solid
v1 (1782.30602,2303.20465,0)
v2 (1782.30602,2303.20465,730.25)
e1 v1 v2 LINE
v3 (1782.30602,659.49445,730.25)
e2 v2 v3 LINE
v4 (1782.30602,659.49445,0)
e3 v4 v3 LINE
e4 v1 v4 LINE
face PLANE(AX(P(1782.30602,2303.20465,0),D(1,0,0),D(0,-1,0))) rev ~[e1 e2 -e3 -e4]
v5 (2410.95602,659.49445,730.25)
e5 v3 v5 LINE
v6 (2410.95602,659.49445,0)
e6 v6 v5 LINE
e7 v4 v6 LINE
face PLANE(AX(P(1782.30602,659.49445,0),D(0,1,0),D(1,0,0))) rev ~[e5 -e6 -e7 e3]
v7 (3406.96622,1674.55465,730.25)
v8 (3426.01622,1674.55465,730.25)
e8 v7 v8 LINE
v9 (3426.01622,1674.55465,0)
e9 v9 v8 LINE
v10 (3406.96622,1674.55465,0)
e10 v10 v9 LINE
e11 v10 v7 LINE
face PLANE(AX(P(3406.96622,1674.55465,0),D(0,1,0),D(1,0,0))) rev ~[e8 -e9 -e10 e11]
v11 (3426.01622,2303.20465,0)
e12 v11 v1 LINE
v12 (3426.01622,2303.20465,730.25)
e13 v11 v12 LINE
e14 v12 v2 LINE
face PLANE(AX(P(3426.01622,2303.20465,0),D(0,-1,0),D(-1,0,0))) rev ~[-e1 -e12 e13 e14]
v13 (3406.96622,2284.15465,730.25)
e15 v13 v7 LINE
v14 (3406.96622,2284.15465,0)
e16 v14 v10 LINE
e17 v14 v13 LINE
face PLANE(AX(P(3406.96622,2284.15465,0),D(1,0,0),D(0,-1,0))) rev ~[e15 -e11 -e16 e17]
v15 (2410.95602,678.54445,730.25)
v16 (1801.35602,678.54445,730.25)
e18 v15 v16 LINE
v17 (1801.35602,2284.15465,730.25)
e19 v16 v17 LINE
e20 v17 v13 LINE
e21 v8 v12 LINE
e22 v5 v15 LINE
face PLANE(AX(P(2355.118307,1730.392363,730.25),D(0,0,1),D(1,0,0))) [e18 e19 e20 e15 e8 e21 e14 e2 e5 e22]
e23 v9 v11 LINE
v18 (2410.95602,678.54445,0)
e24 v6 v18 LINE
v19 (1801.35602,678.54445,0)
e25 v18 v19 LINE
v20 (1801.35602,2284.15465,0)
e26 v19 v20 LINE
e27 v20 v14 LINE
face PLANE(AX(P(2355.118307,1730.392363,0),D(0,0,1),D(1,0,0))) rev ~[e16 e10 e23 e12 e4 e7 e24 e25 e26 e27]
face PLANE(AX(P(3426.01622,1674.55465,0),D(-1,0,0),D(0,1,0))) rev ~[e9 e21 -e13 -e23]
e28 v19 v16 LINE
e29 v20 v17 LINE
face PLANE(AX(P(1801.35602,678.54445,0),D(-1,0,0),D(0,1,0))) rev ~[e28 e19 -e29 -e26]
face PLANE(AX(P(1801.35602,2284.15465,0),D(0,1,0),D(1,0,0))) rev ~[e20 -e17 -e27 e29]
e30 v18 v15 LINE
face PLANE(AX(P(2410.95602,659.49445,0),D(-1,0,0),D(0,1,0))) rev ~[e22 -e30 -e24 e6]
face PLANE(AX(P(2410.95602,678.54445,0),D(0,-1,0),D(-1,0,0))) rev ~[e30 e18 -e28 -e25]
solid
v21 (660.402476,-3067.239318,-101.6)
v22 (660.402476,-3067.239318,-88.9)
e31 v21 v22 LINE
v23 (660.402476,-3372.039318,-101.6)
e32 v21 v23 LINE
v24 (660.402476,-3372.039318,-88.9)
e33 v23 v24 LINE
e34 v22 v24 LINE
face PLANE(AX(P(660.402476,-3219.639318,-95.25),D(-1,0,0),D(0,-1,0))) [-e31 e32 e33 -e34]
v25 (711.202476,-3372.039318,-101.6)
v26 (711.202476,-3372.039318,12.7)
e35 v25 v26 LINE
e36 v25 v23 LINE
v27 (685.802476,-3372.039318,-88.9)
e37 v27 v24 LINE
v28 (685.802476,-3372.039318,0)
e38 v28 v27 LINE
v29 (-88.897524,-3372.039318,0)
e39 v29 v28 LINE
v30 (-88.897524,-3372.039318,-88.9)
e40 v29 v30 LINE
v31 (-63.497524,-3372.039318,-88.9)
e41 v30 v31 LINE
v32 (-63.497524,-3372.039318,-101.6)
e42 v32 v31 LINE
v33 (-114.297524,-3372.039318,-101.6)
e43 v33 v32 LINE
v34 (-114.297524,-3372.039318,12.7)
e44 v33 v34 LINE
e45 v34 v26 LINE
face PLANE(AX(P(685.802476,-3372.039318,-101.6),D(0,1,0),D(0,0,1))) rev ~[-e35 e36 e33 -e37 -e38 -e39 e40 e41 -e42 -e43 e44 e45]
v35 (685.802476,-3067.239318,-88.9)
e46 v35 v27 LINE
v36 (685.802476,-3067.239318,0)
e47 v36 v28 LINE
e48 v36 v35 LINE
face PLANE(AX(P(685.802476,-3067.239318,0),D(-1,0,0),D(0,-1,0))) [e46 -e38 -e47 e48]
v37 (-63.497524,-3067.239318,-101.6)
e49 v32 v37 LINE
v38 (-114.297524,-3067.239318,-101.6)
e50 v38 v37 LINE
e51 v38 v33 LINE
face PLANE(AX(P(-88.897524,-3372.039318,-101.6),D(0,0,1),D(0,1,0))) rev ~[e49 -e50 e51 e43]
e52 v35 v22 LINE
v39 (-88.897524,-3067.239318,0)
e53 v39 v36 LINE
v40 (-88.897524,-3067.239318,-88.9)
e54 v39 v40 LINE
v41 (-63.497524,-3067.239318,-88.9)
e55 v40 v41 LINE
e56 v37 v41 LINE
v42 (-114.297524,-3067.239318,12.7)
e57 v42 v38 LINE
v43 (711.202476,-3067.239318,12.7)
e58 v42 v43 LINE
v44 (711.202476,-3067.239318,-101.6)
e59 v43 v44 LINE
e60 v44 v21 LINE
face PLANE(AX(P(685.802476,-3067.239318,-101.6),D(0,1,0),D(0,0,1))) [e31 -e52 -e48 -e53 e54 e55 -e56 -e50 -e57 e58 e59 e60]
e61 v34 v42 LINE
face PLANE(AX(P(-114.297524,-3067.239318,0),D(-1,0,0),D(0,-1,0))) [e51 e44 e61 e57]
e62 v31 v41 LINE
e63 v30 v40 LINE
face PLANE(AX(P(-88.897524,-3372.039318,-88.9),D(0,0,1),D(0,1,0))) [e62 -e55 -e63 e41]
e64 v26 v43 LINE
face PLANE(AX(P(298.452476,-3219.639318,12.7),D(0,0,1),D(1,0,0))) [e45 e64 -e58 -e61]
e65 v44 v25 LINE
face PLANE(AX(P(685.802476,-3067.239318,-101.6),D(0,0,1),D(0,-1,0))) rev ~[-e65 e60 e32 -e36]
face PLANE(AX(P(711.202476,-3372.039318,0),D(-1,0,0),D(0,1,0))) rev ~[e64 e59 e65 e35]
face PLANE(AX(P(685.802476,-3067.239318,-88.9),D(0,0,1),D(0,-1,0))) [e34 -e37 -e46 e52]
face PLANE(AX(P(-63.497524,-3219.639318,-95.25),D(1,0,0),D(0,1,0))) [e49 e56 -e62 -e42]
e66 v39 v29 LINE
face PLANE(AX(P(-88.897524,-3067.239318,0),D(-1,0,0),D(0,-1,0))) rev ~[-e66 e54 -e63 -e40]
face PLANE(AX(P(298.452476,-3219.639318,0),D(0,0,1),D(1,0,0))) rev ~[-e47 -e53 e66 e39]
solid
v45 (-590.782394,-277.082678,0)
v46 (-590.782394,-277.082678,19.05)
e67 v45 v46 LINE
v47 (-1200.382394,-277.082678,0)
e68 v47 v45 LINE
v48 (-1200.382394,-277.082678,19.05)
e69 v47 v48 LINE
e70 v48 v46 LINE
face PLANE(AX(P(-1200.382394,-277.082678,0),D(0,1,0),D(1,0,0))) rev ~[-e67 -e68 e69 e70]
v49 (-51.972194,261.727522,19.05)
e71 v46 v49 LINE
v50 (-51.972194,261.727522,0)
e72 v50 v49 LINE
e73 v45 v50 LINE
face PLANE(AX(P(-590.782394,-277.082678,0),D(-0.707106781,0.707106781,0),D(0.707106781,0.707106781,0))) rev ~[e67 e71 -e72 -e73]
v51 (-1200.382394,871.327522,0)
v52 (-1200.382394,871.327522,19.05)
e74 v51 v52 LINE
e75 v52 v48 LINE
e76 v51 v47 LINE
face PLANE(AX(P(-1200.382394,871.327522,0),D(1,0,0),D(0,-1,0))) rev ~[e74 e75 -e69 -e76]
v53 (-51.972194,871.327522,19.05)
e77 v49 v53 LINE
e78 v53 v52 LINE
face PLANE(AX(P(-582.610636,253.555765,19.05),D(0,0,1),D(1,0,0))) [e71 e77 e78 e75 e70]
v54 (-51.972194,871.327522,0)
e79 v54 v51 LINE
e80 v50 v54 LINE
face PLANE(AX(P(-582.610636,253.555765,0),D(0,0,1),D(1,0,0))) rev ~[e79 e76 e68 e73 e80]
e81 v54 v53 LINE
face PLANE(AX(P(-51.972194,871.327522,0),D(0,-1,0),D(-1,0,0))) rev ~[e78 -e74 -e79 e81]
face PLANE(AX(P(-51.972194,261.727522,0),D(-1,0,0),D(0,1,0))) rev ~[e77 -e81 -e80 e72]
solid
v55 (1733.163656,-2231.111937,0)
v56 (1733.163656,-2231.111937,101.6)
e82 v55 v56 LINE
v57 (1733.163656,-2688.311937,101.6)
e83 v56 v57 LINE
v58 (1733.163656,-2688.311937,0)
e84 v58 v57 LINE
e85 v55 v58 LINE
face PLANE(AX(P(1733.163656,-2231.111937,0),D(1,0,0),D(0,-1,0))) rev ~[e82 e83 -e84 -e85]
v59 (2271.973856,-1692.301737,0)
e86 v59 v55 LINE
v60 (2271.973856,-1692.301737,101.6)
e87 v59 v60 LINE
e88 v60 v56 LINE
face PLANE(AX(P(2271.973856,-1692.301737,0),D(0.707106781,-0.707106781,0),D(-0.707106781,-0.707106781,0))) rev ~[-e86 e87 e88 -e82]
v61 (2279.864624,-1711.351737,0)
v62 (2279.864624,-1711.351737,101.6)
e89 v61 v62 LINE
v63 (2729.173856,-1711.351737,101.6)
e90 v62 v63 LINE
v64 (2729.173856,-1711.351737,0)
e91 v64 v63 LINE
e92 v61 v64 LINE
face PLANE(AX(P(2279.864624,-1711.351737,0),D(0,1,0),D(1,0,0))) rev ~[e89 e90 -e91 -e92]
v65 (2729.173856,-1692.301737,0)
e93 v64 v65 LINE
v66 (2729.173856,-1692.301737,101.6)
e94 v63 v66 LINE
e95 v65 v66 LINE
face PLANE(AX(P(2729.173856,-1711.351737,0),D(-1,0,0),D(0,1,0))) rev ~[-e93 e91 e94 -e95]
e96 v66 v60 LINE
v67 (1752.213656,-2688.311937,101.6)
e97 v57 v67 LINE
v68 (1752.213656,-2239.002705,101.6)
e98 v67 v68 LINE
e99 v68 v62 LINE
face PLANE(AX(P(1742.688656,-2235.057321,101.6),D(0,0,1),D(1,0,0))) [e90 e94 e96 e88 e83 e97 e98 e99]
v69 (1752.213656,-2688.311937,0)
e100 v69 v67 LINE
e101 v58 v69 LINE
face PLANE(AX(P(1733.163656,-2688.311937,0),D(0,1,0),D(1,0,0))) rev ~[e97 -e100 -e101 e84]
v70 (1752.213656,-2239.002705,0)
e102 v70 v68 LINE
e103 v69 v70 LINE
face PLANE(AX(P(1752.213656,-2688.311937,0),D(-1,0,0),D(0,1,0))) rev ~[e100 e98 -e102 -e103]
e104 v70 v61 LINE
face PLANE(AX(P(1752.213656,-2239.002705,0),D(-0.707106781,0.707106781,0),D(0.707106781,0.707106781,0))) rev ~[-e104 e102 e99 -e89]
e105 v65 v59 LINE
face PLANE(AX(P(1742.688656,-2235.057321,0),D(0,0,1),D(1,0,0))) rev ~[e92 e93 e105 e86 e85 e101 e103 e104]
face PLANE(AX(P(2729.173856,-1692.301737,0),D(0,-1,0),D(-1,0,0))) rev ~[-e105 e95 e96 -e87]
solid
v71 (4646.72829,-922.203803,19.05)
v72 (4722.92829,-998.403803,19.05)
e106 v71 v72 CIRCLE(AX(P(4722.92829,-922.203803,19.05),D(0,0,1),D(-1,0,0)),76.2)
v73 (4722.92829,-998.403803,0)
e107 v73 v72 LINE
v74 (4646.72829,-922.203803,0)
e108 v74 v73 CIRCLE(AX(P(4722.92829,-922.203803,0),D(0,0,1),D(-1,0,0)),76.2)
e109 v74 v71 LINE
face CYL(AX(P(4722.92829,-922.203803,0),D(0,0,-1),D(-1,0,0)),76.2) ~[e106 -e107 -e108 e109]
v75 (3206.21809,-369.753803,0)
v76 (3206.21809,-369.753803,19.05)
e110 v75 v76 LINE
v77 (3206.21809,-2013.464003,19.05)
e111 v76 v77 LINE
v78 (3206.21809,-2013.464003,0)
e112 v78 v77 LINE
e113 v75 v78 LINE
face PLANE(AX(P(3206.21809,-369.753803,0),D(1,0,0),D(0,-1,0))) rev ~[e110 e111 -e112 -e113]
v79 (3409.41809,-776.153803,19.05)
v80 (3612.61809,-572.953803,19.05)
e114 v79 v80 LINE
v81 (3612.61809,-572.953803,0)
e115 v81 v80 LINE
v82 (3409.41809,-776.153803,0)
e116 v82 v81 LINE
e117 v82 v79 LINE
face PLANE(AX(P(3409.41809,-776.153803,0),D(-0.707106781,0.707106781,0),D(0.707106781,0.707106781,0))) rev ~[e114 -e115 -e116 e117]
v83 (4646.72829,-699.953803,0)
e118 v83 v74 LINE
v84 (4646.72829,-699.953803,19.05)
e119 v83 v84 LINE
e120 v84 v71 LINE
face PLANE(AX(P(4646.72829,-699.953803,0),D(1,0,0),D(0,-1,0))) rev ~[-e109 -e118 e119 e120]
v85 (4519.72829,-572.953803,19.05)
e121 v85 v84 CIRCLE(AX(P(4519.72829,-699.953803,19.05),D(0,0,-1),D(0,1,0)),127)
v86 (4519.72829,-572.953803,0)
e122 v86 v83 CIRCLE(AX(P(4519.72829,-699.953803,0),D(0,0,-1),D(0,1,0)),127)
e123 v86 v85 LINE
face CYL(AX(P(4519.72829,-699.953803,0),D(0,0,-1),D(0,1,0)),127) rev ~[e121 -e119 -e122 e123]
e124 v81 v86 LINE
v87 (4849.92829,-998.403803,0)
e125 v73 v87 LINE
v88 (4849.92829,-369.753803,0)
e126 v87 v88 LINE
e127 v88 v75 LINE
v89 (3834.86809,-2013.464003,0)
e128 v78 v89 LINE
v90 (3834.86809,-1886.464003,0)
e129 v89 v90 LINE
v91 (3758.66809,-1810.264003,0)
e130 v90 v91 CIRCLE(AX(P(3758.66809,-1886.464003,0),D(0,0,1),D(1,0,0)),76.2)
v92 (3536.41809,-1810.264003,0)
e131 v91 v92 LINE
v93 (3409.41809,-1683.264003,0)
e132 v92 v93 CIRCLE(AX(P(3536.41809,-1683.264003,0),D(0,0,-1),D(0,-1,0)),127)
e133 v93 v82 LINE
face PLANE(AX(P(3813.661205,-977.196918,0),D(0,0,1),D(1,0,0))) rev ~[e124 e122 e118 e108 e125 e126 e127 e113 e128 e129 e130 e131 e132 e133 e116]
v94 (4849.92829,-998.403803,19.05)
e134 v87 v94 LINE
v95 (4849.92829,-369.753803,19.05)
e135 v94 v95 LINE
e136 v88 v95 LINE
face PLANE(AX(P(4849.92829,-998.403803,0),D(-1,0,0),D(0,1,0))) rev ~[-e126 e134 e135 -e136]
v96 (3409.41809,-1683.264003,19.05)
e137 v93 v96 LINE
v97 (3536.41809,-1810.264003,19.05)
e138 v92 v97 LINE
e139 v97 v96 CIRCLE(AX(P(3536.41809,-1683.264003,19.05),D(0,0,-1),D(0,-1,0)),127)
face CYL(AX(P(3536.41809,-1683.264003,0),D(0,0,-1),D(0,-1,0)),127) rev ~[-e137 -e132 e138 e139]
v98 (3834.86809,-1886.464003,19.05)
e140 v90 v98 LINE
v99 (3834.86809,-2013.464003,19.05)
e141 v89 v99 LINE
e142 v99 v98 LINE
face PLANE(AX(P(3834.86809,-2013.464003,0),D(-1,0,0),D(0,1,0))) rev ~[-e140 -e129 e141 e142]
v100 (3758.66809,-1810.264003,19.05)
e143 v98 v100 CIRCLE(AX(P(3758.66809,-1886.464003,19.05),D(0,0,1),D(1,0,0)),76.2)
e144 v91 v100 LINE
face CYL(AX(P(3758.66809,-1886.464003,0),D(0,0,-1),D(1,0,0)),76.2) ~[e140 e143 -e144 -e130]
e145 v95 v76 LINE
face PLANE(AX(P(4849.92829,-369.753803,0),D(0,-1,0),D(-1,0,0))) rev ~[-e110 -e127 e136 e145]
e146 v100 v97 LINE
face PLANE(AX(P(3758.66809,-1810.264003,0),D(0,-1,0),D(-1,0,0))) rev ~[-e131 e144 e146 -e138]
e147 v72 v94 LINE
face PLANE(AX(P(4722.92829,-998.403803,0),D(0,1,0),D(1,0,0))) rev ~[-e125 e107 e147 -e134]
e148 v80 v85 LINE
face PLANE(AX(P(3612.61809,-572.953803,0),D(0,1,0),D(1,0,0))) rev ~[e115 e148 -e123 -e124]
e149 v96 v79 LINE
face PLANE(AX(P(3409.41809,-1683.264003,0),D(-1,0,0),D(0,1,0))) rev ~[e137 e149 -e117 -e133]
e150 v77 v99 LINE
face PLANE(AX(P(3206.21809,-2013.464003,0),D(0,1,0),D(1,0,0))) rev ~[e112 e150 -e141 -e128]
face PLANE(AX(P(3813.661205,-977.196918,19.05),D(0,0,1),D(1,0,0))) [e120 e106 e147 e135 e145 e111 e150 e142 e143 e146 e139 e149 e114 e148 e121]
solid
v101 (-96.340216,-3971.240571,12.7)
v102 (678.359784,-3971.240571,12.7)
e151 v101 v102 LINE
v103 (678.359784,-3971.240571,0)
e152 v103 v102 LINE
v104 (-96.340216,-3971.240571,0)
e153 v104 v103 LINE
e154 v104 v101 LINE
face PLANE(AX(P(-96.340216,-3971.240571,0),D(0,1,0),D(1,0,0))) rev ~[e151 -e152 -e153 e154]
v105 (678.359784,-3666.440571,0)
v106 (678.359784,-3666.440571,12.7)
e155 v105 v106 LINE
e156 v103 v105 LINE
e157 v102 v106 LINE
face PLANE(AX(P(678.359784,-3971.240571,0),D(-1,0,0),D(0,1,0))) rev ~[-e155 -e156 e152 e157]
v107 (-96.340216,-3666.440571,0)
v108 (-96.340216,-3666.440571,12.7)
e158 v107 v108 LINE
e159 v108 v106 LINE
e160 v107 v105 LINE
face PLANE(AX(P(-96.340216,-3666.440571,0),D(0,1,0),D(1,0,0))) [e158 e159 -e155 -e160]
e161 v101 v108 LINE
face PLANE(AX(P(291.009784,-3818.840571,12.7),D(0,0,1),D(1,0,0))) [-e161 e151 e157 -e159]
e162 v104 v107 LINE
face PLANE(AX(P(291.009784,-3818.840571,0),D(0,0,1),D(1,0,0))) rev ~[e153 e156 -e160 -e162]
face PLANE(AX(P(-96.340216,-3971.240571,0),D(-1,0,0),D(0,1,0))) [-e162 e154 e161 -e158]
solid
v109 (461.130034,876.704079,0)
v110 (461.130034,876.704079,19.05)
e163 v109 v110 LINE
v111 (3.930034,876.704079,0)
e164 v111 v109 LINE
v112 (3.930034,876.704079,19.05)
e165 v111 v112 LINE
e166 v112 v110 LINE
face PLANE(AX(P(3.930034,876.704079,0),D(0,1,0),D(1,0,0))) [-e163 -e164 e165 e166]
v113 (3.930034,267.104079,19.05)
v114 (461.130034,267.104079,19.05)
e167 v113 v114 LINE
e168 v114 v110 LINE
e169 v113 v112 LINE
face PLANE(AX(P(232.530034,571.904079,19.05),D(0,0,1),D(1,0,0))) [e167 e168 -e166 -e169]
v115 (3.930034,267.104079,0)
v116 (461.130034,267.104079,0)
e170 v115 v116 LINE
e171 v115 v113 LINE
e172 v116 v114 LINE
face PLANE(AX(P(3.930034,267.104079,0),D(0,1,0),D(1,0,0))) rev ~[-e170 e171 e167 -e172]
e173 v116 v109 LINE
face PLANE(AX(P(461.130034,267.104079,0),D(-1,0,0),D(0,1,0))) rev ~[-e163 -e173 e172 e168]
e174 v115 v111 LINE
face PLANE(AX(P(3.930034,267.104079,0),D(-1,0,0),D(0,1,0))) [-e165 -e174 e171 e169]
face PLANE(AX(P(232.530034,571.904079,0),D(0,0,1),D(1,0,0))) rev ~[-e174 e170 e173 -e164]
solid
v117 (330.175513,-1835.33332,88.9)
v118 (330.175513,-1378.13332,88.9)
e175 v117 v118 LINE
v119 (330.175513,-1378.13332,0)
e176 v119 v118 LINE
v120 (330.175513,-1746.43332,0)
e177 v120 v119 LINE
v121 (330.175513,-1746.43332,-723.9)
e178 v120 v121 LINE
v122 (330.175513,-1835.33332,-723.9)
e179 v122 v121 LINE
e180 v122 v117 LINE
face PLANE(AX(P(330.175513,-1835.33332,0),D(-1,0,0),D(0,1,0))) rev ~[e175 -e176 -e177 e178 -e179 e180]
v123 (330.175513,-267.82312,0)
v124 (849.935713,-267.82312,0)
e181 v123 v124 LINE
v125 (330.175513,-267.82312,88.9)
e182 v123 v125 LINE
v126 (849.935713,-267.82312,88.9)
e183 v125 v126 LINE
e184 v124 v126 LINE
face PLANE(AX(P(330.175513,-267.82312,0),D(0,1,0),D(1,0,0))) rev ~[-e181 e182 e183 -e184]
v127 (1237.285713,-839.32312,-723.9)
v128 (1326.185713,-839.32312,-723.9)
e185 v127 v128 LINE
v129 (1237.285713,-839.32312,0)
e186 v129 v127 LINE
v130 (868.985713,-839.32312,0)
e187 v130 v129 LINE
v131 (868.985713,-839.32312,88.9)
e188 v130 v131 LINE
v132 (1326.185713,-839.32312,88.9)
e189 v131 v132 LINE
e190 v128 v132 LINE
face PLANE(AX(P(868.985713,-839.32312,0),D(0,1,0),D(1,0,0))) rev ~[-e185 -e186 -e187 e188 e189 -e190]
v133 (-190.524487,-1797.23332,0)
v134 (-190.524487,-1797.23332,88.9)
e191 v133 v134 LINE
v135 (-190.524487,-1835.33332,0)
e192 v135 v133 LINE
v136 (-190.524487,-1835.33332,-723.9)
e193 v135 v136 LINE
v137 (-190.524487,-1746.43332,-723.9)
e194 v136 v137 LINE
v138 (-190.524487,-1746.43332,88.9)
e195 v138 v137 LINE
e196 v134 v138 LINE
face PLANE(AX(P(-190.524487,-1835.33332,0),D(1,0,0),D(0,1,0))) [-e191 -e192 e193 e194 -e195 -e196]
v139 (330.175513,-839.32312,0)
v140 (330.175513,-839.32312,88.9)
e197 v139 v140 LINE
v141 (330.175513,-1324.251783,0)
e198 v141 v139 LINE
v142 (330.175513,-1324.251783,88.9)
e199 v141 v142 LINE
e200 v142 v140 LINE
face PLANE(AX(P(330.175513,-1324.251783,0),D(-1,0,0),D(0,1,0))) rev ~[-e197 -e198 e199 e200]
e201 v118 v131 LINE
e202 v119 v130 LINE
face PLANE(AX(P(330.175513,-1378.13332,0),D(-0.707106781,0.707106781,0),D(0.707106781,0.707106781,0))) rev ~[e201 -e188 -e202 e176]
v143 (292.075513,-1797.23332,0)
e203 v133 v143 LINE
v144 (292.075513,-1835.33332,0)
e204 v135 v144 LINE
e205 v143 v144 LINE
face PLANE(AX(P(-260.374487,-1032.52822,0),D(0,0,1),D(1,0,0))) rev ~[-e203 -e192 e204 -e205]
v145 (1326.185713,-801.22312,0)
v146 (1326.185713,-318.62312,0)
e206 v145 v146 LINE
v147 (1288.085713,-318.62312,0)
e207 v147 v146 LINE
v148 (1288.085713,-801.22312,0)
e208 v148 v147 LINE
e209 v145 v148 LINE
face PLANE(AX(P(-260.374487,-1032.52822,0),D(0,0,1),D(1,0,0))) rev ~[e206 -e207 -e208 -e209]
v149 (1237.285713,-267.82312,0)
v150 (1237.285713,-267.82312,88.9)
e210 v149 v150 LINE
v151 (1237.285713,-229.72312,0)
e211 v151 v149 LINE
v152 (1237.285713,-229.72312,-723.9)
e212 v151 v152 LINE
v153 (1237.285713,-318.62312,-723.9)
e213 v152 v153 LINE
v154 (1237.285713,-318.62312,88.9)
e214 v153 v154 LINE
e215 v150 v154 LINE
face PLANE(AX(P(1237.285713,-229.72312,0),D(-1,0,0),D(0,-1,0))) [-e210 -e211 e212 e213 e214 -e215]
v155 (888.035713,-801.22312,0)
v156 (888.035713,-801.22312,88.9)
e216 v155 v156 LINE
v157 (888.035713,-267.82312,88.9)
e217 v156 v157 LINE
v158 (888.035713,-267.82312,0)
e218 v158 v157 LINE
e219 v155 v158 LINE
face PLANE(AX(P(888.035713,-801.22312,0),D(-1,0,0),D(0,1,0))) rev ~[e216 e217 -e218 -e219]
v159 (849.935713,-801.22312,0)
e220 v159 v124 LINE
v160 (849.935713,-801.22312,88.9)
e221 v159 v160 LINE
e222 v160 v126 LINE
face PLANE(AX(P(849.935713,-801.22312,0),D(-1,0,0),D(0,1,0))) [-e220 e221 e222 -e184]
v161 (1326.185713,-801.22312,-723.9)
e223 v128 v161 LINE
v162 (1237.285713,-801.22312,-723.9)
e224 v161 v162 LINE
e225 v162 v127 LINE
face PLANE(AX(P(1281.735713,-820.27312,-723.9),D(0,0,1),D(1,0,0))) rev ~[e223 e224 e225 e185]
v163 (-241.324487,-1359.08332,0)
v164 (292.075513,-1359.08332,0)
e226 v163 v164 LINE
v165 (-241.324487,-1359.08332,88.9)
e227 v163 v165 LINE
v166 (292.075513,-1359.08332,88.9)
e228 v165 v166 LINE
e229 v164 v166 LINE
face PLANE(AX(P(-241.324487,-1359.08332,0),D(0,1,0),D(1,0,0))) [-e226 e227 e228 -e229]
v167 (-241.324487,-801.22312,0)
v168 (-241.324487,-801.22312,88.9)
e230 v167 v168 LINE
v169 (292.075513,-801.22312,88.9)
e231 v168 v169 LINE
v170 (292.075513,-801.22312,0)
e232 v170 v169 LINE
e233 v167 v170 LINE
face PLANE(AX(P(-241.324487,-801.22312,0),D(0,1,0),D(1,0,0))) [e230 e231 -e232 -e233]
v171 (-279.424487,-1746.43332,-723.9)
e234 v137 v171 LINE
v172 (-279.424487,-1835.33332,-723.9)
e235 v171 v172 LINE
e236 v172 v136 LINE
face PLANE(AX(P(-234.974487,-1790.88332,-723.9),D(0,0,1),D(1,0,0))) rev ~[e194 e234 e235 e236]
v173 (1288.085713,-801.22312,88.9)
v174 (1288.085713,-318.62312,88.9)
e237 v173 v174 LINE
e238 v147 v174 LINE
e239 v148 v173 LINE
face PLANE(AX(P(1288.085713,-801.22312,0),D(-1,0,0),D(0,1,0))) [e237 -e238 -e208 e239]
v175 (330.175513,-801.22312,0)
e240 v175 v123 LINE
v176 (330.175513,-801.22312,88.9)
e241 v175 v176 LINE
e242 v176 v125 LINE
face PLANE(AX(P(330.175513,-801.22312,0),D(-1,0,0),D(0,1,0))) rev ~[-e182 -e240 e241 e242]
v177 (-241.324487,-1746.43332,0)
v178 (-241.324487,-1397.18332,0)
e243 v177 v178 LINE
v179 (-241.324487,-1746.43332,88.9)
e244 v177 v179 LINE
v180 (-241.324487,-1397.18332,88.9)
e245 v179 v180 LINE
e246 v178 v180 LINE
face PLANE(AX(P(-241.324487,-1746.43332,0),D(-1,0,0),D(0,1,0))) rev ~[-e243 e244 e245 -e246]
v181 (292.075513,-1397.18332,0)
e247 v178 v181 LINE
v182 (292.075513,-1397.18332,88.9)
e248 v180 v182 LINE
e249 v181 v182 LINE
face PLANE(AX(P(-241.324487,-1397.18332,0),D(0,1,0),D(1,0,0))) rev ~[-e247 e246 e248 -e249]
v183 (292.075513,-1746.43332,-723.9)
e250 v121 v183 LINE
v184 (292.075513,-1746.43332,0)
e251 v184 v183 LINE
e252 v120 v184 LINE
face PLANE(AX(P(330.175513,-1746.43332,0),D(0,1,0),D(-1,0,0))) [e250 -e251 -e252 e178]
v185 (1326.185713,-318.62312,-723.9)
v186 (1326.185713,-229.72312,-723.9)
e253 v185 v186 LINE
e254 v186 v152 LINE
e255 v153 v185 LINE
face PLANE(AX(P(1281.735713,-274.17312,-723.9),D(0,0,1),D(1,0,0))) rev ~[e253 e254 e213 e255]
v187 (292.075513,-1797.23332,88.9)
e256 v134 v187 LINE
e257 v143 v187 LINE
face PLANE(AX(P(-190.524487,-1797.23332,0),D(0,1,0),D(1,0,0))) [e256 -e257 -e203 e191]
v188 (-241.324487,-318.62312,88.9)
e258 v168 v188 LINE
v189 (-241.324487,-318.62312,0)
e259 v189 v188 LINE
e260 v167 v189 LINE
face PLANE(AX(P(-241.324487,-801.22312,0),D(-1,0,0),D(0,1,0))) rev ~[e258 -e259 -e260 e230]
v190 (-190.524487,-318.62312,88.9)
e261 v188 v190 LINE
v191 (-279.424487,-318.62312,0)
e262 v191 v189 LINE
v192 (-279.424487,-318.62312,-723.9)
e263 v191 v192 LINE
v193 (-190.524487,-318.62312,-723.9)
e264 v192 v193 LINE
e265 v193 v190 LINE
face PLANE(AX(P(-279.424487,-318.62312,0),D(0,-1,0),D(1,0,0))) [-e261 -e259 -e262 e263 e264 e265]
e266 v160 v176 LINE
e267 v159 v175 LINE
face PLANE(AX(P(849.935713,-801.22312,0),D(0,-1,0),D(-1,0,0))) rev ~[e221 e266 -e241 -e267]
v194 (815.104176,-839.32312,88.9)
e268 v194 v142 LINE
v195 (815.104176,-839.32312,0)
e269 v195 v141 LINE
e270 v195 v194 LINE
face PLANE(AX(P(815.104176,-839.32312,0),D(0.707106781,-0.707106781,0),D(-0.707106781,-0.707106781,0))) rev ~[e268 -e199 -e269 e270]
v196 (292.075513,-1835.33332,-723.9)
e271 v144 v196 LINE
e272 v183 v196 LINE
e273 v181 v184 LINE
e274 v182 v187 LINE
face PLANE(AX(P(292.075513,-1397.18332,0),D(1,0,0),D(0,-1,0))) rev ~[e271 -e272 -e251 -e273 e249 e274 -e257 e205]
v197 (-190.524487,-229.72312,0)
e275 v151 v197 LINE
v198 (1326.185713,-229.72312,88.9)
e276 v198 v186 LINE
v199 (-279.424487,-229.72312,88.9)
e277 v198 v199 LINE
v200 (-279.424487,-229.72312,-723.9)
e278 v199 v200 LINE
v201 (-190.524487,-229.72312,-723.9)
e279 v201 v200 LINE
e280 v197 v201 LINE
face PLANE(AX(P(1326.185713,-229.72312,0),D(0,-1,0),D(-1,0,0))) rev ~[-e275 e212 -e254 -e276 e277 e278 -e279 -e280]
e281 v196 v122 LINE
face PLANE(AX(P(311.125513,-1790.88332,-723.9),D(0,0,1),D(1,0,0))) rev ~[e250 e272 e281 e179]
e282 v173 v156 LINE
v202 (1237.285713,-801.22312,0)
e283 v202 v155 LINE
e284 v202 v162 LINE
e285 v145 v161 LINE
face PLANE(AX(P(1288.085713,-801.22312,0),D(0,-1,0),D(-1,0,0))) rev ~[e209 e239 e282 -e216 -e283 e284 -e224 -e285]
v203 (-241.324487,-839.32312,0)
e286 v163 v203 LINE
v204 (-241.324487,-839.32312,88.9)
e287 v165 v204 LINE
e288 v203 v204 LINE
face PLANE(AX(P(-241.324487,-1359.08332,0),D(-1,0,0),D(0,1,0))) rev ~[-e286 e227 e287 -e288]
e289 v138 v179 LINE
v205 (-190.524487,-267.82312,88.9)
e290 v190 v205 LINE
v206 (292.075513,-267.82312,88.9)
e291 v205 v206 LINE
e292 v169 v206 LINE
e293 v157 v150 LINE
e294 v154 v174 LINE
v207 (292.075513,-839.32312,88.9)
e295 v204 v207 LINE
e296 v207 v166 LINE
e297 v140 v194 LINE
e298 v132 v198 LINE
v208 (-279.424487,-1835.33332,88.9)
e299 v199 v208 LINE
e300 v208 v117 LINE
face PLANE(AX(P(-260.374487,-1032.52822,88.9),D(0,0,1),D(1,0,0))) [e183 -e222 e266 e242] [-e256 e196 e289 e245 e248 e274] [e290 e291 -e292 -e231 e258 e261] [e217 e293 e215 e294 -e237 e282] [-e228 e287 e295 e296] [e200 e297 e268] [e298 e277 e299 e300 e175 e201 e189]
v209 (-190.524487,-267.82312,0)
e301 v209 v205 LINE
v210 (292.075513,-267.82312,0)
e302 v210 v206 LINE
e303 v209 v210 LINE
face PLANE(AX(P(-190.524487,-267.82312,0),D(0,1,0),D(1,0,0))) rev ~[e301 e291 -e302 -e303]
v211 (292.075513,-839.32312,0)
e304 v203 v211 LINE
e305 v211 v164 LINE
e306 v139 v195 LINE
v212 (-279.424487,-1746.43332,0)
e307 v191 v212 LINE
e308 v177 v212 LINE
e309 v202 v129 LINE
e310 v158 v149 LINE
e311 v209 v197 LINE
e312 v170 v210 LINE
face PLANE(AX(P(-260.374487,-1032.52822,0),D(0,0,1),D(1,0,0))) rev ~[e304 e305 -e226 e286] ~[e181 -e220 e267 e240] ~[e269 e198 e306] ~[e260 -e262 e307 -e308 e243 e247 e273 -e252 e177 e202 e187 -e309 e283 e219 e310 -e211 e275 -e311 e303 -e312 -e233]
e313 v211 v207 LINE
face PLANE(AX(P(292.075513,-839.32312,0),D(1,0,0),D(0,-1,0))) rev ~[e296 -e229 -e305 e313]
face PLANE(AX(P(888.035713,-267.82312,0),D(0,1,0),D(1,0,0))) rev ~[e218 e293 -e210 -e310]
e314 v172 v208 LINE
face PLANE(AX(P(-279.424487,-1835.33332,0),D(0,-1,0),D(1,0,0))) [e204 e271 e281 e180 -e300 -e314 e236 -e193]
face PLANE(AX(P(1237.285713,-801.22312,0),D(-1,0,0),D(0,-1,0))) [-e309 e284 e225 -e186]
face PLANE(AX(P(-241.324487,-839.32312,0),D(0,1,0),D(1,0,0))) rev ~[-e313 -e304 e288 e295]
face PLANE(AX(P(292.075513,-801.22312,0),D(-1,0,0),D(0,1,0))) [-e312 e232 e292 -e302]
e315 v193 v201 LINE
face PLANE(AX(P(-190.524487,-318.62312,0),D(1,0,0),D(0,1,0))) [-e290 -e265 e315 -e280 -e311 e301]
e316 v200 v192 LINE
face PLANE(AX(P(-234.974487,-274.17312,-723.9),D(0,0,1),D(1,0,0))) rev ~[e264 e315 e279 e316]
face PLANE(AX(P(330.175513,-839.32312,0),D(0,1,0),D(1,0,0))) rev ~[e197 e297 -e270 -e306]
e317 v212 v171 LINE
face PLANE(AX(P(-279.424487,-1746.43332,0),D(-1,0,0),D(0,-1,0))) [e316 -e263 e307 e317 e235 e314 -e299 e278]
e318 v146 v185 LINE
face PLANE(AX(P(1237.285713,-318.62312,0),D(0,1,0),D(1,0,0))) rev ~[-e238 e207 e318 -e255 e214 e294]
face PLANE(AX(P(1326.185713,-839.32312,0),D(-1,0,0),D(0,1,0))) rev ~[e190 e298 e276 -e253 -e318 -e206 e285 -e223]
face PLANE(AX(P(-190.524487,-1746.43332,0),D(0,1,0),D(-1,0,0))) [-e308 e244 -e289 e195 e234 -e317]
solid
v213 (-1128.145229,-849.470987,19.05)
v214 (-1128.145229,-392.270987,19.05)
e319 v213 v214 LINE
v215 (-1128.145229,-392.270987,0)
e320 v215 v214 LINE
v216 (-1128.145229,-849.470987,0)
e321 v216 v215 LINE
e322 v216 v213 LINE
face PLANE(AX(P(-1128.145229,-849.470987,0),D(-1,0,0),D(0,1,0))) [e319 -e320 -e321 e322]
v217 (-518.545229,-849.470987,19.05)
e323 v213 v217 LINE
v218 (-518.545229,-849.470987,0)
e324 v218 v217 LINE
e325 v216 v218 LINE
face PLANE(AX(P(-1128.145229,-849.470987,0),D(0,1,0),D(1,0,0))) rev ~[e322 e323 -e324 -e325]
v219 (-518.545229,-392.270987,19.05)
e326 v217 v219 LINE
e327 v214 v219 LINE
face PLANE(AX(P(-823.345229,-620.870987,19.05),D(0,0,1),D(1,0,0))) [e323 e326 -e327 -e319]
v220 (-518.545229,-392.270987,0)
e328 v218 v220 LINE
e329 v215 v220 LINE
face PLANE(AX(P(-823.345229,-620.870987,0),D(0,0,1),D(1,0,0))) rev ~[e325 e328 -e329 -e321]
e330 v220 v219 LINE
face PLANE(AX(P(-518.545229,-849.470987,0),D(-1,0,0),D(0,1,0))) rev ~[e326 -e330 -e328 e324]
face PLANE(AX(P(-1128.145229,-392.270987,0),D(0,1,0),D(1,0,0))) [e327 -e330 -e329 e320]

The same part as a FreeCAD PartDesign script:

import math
import FreeCAD as App
import Part
import Sketcher

V = App.Vector
Q = App.Units.Quantity


def add_polygon(sketch, points):
    """Adds a closed chain of lines whose ends are joined by coincident constraints."""
    first, n = sketch.GeometryCount, len(points)
    for a, b in zip(points, points[1:] + points[:1]):
        sketch.addGeometry(Part.LineSegment(App.Vector(*a, 0), App.Vector(*b, 0)), False)
    for i in range(n):
        sketch.addConstraint(Sketcher.Constraint("Coincident", first + i, 2, first + (i + 1) % n, 1))

doc = App.newDocument("Part")
body = doc.addObject("PartDesign::Body", "Body")

# Sketch on XY plane
sketch1 = body.newObject("Sketcher::SketchObject", "Sketch")
sketch1.AttachmentSupport = (doc.getObject("XY_Plane"), [""])
sketch1.MapMode = "FlatFace"
add_polygon(sketch1, [(-51.972194, 871.327522), (-1200.382394, 871.327522), (-1200.382394, -277.082678), (-590.782394, -277.082678), (-51.972194, 261.727522)])  # lines 0-4
sketch1.addConstraint([
    Sketcher.Constraint("Horizontal", 0),
    Sketcher.Constraint("Vertical", 1),
    Sketcher.Constraint("Horizontal", 2),
    Sketcher.Constraint("Vertical", 4),
    Sketcher.Constraint("Equal", 0, 1),
    Sketcher.Constraint("Equal", 2, 4),
    Sketcher.Constraint("DistanceX", 2, 1, 2, 2, Q("24 in")),
    Sketcher.Constraint("DistanceX", 0, 2, 0, 1, Q("45.213 in")),
    Sketcher.Constraint("DistanceX", 0, 2, -1, 1, Q("1200.382394 mm")),
    Sketcher.Constraint("DistanceY", -1, 1, 0, 2, Q("871.327522 mm")),
])
pad1 = body.newObject("PartDesign::Pad", "Pad")
pad1.Profile = sketch1
pad1.Length = Q("0.75 in")
body2 = doc.addObject("PartDesign::Body", "Body001")

# Sketch on XY plane
sketch2 = body2.newObject("Sketcher::SketchObject", "Sketch001")
sketch2.AttachmentSupport = (doc.getObject("XY_Plane001"), [""])
sketch2.MapMode = "FlatFace"
add_polygon(sketch2, [(-1128.145229, -392.270987), (-1128.145229, -849.470987), (-518.545229, -849.470987), (-518.545229, -392.270987)])  # lines 0-3
sketch2.addConstraint([
    Sketcher.Constraint("Vertical", 0),
    Sketcher.Constraint("Horizontal", 1),
    Sketcher.Constraint("Vertical", 2),
    Sketcher.Constraint("Horizontal", 3),
    Sketcher.Constraint("DistanceX", 1, 1, 1, 2, Q("24 in")),
    Sketcher.Constraint("DistanceY", 0, 2, 0, 1, Q("18 in")),
    Sketcher.Constraint("DistanceX", 0, 2, -1, 1, Q("1128.145229 mm")),
    Sketcher.Constraint("DistanceY", 0, 2, -1, 1, Q("849.470987 mm")),
])
pad2 = body2.newObject("PartDesign::Pad", "Pad001")
pad2.Profile = sketch2
pad2.Length = Q("0.75 in")
body3 = doc.addObject("PartDesign::Body", "Body002")

# Sketch on XY plane
sketch3 = body3.newObject("Sketcher::SketchObject", "Sketch002")
sketch3.AttachmentSupport = (doc.getObject("XY_Plane002"), [""])
sketch3.MapMode = "FlatFace"
add_polygon(sketch3, [(3.930034, 876.704079), (3.930034, 267.104079), (461.130034, 267.104079), (461.130034, 876.704079)])  # lines 0-3
sketch3.addConstraint([
    Sketcher.Constraint("Vertical", 0),
    Sketcher.Constraint("Horizontal", 1),
    Sketcher.Constraint("Vertical", 2),
    Sketcher.Constraint("Horizontal", 3),
    Sketcher.Constraint("DistanceX", 1, 1, 1, 2, Q("18 in")),
    Sketcher.Constraint("DistanceY", 0, 2, 0, 1, Q("24 in")),
    Sketcher.Constraint("DistanceY", -1, 1, 0, 2, Q("267.104079 mm")),
    Sketcher.Constraint("DistanceX", -1, 1, 0, 2, Q("3.930034 mm")),
])
pad3 = body3.newObject("PartDesign::Pad", "Pad002")
pad3.Profile = sketch3
pad3.Length = Q("0.75 in")
body4 = doc.addObject("PartDesign::Body", "Body003")

# Sketch on XY plane
sketch4 = body4.newObject("Sketcher::SketchObject", "Sketch003")
sketch4.AttachmentSupport = (doc.getObject("XY_Plane003"), [""])
sketch4.MapMode = "FlatFace"
add_polygon(sketch4, [(1326.185713, -229.72312), (-279.424487, -229.72312), (-279.424487, -1835.33332), (330.175513, -1835.33332), (330.175513, -1378.13332), (868.985713, -839.32312), (1326.185713, -839.32312)])  # lines 0-6
add_polygon(sketch4, [(1237.285713, -318.62312), (1288.085713, -318.62312), (1288.085713, -801.22312), (888.035713, -801.22312), (888.035713, -267.82312), (1237.285713, -267.82312)])  # lines 7-12
add_polygon(sketch4, [(-190.524487, -1746.43332), (-241.324487, -1746.43332), (-241.324487, -1397.18332), (292.075513, -1397.18332), (292.075513, -1797.23332), (-190.524487, -1797.23332)])  # lines 13-18
add_polygon(sketch4, [(292.075513, -1359.08332), (-241.324487, -1359.08332), (-241.324487, -839.32312), (292.075513, -839.32312)])  # lines 19-22
add_polygon(sketch4, [(330.175513, -839.32312), (815.104176, -839.32312), (330.175513, -1324.251783)])  # lines 23-25
add_polygon(sketch4, [(292.075513, -801.22312), (-241.324487, -801.22312), (-241.324487, -318.62312), (-190.524487, -318.62312), (-190.524487, -267.82312), (292.075513, -267.82312)])  # lines 26-31
add_polygon(sketch4, [(330.175513, -801.22312), (330.175513, -267.82312), (849.935713, -267.82312), (849.935713, -801.22312)])  # lines 32-35
sketch4.addConstraint([
    Sketcher.Constraint("Horizontal", 0),
    Sketcher.Constraint("Vertical", 1),
    Sketcher.Constraint("Horizontal", 2),
    Sketcher.Constraint("Vertical", 3),
    Sketcher.Constraint("Horizontal", 5),
    Sketcher.Constraint("Vertical", 6),
    Sketcher.Constraint("Horizontal", 7),
    Sketcher.Constraint("Vertical", 8),
    Sketcher.Constraint("Horizontal", 9),
    Sketcher.Constraint("Vertical", 10),
    Sketcher.Constraint("Horizontal", 11),
    Sketcher.Constraint("Vertical", 12),
    Sketcher.Constraint("Horizontal", 13),
    Sketcher.Constraint("Vertical", 14),
    Sketcher.Constraint("Horizontal", 15),
    Sketcher.Constraint("Vertical", 16),
    Sketcher.Constraint("Horizontal", 17),
    Sketcher.Constraint("Vertical", 18),
    Sketcher.Constraint("Horizontal", 19),
    Sketcher.Constraint("Vertical", 20),
    Sketcher.Constraint("Horizontal", 21),
    Sketcher.Constraint("Vertical", 22),
    Sketcher.Constraint("Horizontal", 23),
    Sketcher.Constraint("Vertical", 25),
    Sketcher.Constraint("Horizontal", 26),
    Sketcher.Constraint("Vertical", 27),
    Sketcher.Constraint("Horizontal", 28),
    Sketcher.Constraint("Vertical", 29),
    Sketcher.Constraint("Horizontal", 30),
    Sketcher.Constraint("Vertical", 31),
    Sketcher.Constraint("Vertical", 32),
    Sketcher.Constraint("Horizontal", 33),
    Sketcher.Constraint("Vertical", 34),
    Sketcher.Constraint("Horizontal", 35),
    Sketcher.Constraint("Parallel", 4, 24),
    Sketcher.Constraint("Horizontal", 5, 2, 20, 2),
    Sketcher.Constraint("Horizontal", 21, 2, 23, 2),
    Sketcher.Constraint("Horizontal", 9, 2, 26, 2),
    Sketcher.Constraint("Horizontal", 12, 2, 27, 2),
    Sketcher.Constraint("Horizontal", 11, 2, 29, 2),
    Sketcher.Constraint("Horizontal", 30, 2, 32, 2),
    Sketcher.Constraint("Horizontal", 31, 2, 34, 2),
    Sketcher.Constraint("Vertical", 14, 2, 19, 2),
    Sketcher.Constraint("Vertical", 16, 2, 21, 2),
    Sketcher.Constraint("Vertical", 3, 2, 24, 2),
    Sketcher.Constraint("Vertical", 20, 2, 26, 2),
    Sketcher.Constraint("Vertical", 18, 2, 28, 2),
    Sketcher.Constraint("Vertical", 22, 2, 30, 2),
    Sketcher.Constraint("Vertical", 25, 2, 32, 2),
    Sketcher.Constraint("Equal", 7, 13),
    Sketcher.Constraint("Equal", 0, 1),
    Sketcher.Constraint("Equal", 5, 3),
    Sketcher.Constraint("Equal", 2, 6),
    Sketcher.Constraint("Equal", 30, 8),
    Sketcher.Constraint("Equal", 26, 10),
    Sketcher.Constraint("Equal", 11, 14),
    Sketcher.Constraint("Equal", 9, 16),
    Sketcher.Constraint("Equal", 35, 20),
    Sketcher.Constraint("DistanceX", 2, 1, 2, 2, Q("24 in")),
    Sketcher.Constraint("DistanceX", 5, 1, 5, 2, Q("18 in")),
    Sketcher.Constraint("DistanceX", 7, 1, 7, 2, Q("2 in")),
    Sketcher.Constraint("DistanceX", 15, 1, 15, 2, Q("21 in")),
    Sketcher.Constraint("DistanceX", 9, 2, 9, 1, Q("15.75 in")),
    Sketcher.Constraint("DistanceX", 7, 2, 6, 2, Q("1.5 in")),
    Sketcher.Constraint("DistanceY", 7, 2, 6, 2, Q("3.5 in")),
    Sketcher.Constraint("DistanceX", 1, 2, 13, 2, Q("1.5 in")),
    Sketcher.Constraint("DistanceY", 1, 2, 13, 2, Q("3.5 in")),
    Sketcher.Constraint("DistanceY", 14, 2, 19, 2, Q("1.5 in")),
    Sketcher.Constraint("DistanceX", 0, 2, 0, 1, Q("63.213 in")),
    Sketcher.Constraint("DistanceX", 23, 1, 23, 2, Q("484.928663 mm")),
    Sketcher.Constraint("DistanceY", 0, 2, -1, 1, Q("229.72312 mm")),
    Sketcher.Constraint("DistanceX", 0, 2, -1, 1, Q("279.424487 mm")),
])
pad4 = body4.newObject("PartDesign::Pad", "Pad003")
pad4.Profile = sketch4
pad4.Length = Q("3.5 in")

# Sketch on XY plane
sketch5 = body4.newObject("Sketcher::SketchObject", "Sketch004")
sketch5.AttachmentSupport = (doc.getObject("XY_Plane003"), [""])
sketch5.MapMode = "FlatFace"
add_polygon(sketch5, [(-279.424487, -1746.43332), (-279.424487, -1835.33332), (-190.524487, -1835.33332), (-190.524487, -1746.43332)])  # lines 0-3
add_polygon(sketch5, [(292.075513, -1835.33332), (330.175513, -1835.33332), (330.175513, -1746.43332), (292.075513, -1746.43332)])  # lines 4-7
add_polygon(sketch5, [(-190.524487, -229.72312), (-279.424487, -229.72312), (-279.424487, -318.62312), (-190.524487, -318.62312)])  # lines 8-11
add_polygon(sketch5, [(1326.185713, -229.72312), (1237.285713, -229.72312), (1237.285713, -318.62312), (1326.185713, -318.62312)])  # lines 12-15
add_polygon(sketch5, [(1326.185713, -839.32312), (1326.185713, -801.22312), (1237.285713, -801.22312), (1237.285713, -839.32312)])  # lines 16-19
sketch5.addConstraint([
    Sketcher.Constraint("Vertical", 0),
    Sketcher.Constraint("Horizontal", 1),
    Sketcher.Constraint("Vertical", 2),
    Sketcher.Constraint("Horizontal", 3),
    Sketcher.Constraint("Horizontal", 4),
    Sketcher.Constraint("Vertical", 5),
    Sketcher.Constraint("Horizontal", 6),
    Sketcher.Constraint("Vertical", 7),
    Sketcher.Constraint("Horizontal", 8),
    Sketcher.Constraint("Vertical", 9),
    Sketcher.Constraint("Horizontal", 10),
    Sketcher.Constraint("Vertical", 11),
    Sketcher.Constraint("Horizontal", 12),
    Sketcher.Constraint("Vertical", 13),
    Sketcher.Constraint("Horizontal", 14),
    Sketcher.Constraint("Vertical", 15),
    Sketcher.Constraint("Vertical", 16),
    Sketcher.Constraint("Horizontal", 17),
    Sketcher.Constraint("Vertical", 18),
    Sketcher.Constraint("Horizontal", 19),
    Sketcher.Constraint("Horizontal", 1, 2, 4, 2),
    Sketcher.Constraint("Horizontal", 3, 2, 5, 2),
    Sketcher.Constraint("Horizontal", 11, 2, 12, 2),
    Sketcher.Constraint("Horizontal", 10, 2, 13, 2),
    Sketcher.Constraint("Vertical", 3, 2, 8, 2),
    Sketcher.Constraint("Vertical", 2, 2, 10, 2),
    Sketcher.Constraint("Vertical", 15, 2, 16, 2),
    Sketcher.Constraint("Vertical", 13, 2, 17, 2),
    Sketcher.Constraint("Equal", 10, 12),
    Sketcher.Constraint("Equal", 19, 0),
    Sketcher.Constraint("Equal", 7, 9),
    Sketcher.Constraint("Equal", 6, 16),
    Sketcher.Constraint("DistanceX", 1, 1, 1, 2, Q("3.5 in")),
    Sketcher.Constraint("DistanceX", 4, 1, 4, 2, Q("1.5 in")),
    Sketcher.Constraint("DistanceX", 0, 2, 4, 2, Q("24 in")),
    Sketcher.Constraint("DistanceY", 16, 2, 14, 2, Q("19 in")),
    Sketcher.Constraint("DistanceY", 3, 2, 8, 2, Q("59.713 in")),
    Sketcher.Constraint("DistanceX", 11, 2, 12, 2, Q("56.213 in")),
    Sketcher.Constraint("DistanceY", 0, 2, -1, 1, Q("1835.33332 mm")),
    Sketcher.Constraint("DistanceX", 0, 2, -1, 1, Q("279.424487 mm")),
])
pad5 = body4.newObject("PartDesign::Pad", "Pad004")
pad5.Profile = sketch5
pad5.Length = Q("28.5 in")
pad5.Reversed = True
body5 = doc.addObject("PartDesign::Body", "Body004")

# Sketch on XY plane
sketch6 = body5.newObject("Sketcher::SketchObject", "Sketch005")
sketch6.AttachmentSupport = (doc.getObject("XY_Plane004"), [""])
sketch6.MapMode = "FlatFace"
add_polygon(sketch6, [(1782.30602, 2303.20465), (1782.30602, 659.49445), (2410.95602, 659.49445), (2410.95602, 678.54445), (1801.35602, 678.54445), (1801.35602, 2284.15465), (3406.96622, 2284.15465), (3406.96622, 1674.55465), (3426.01622, 1674.55465), (3426.01622, 2303.20465)])  # lines 0-9
sketch6.addConstraint([
    Sketcher.Constraint("Vertical", 0),
    Sketcher.Constraint("Horizontal", 1),
    Sketcher.Constraint("Vertical", 2),
    Sketcher.Constraint("Horizontal", 3),
    Sketcher.Constraint("Vertical", 4),
    Sketcher.Constraint("Horizontal", 5),
    Sketcher.Constraint("Vertical", 6),
    Sketcher.Constraint("Horizontal", 7),
    Sketcher.Constraint("Vertical", 8),
    Sketcher.Constraint("Horizontal", 9),
    Sketcher.Constraint("Equal", 9, 0),
    Sketcher.Constraint("Equal", 7, 2),
    Sketcher.Constraint("Equal", 5, 4),
    Sketcher.Constraint("Equal", 3, 6),
    Sketcher.Constraint("DistanceX", 3, 2, 3, 1, Q("24 in")),
    Sketcher.Constraint("DistanceX", 1, 1, 1, 2, Q("24.75 in")),
    Sketcher.Constraint("DistanceX", 7, 1, 7, 2, Q("0.75 in")),
    Sketcher.Constraint("DistanceX", 5, 1, 5, 2, Q("63.213 in")),
    Sketcher.Constraint("DistanceX", -1, 1, 0, 2, Q("1782.30602 mm")),
    Sketcher.Constraint("DistanceY", -1, 1, 0, 2, Q("659.49445 mm")),
])
pad6 = body5.newObject("PartDesign::Pad", "Pad005")
pad6.Profile = sketch6
pad6.Length = Q("28.75 in")
body6 = doc.addObject("PartDesign::Body", "Body005")

# Sketch on XY plane
sketch7 = body6.newObject("Sketcher::SketchObject", "Sketch006")
sketch7.AttachmentSupport = (doc.getObject("XY_Plane005"), [""])
sketch7.MapMode = "FlatFace"
sketch7.addGeometry([
    Part.LineSegment(V(4849.92829, -369.753803, 0), V(3206.21809, -369.753803, 0)),  # 0
    Part.LineSegment(V(3206.21809, -369.753803, 0), V(3206.21809, -2013.464003, 0)),  # 1
    Part.LineSegment(V(3206.21809, -2013.464003, 0), V(3834.86809, -2013.464003, 0)),  # 2
    Part.LineSegment(V(3834.86809, -2013.464003, 0), V(3834.86809, -1886.464003, 0)),  # 3
    Part.ArcOfCircle(Part.Circle(V(3758.66809, -1886.464003, 0), V(0, 0, 1), 76.2), math.radians(0), math.radians(90)),  # 4
    Part.LineSegment(V(3758.66809, -1810.264003, 0), V(3536.41809, -1810.264003, 0)),  # 5
    Part.ArcOfCircle(Part.Circle(V(3536.41809, -1683.264003, 0), V(0, 0, 1), 127), math.radians(180), math.radians(270)),  # 6
    Part.LineSegment(V(3409.41809, -1683.264003, 0), V(3409.41809, -776.153803, 0)),  # 7
    Part.LineSegment(V(3409.41809, -776.153803, 0), V(3612.61809, -572.953803, 0)),  # 8
    Part.LineSegment(V(3612.61809, -572.953803, 0), V(4519.72829, -572.953803, 0)),  # 9
    Part.ArcOfCircle(Part.Circle(V(4519.72829, -699.953803, 0), V(0, 0, 1), 127), math.radians(0), math.radians(90)),  # 10
    Part.LineSegment(V(4646.72829, -699.953803, 0), V(4646.72829, -922.203803, 0)),  # 11
    Part.ArcOfCircle(Part.Circle(V(4722.92829, -922.203803, 0), V(0, 0, 1), 76.2), math.radians(180), math.radians(270)),  # 12
    Part.LineSegment(V(4722.92829, -998.403803, 0), V(4849.92829, -998.403803, 0)),  # 13
    Part.LineSegment(V(4849.92829, -998.403803, 0), V(4849.92829, -369.753803, 0)),  # 14
], False)
sketch7.addConstraint([
    Sketcher.Constraint("Coincident", 0, 2, 1, 1),
    Sketcher.Constraint("Coincident", 1, 2, 2, 1),
    Sketcher.Constraint("Coincident", 2, 2, 3, 1),
    Sketcher.Constraint("Tangent", 3, 2, 4, 1),
    Sketcher.Constraint("Tangent", 4, 2, 5, 1),
    Sketcher.Constraint("Tangent", 5, 2, 6, 2),
    Sketcher.Constraint("Tangent", 6, 1, 7, 1),
    Sketcher.Constraint("Coincident", 7, 2, 8, 1),
    Sketcher.Constraint("Coincident", 8, 2, 9, 1),
    Sketcher.Constraint("Tangent", 9, 2, 10, 2),
    Sketcher.Constraint("Tangent", 10, 1, 11, 1),
    Sketcher.Constraint("Tangent", 11, 2, 12, 1),
    Sketcher.Constraint("Tangent", 12, 2, 13, 1),
    Sketcher.Constraint("Coincident", 13, 2, 14, 1),
    Sketcher.Constraint("Coincident", 14, 2, 0, 1),
    Sketcher.Constraint("Horizontal", 0),
    Sketcher.Constraint("Vertical", 1),
    Sketcher.Constraint("Horizontal", 2),
    Sketcher.Constraint("Vertical", 3),
    Sketcher.Constraint("Horizontal", 5),
    Sketcher.Constraint("Vertical", 7),
    Sketcher.Constraint("Horizontal", 9),
    Sketcher.Constraint("Vertical", 11),
    Sketcher.Constraint("Horizontal", 13),
    Sketcher.Constraint("Vertical", 14),
    Sketcher.Constraint("Equal", 6, 10),
    Sketcher.Constraint("Equal", 4, 12),
    Sketcher.Constraint("Equal", 0, 1),
    Sketcher.Constraint("Equal", 13, 3),
    Sketcher.Constraint("Equal", 9, 7),
    Sketcher.Constraint("Equal", 5, 11),
    Sketcher.Constraint("Equal", 2, 14),
    Sketcher.Constraint("Radius", 4, Q("3 in")),
    Sketcher.Constraint("Radius", 6, Q("5 in")),
    Sketcher.Constraint("DistanceX", 13, 1, 13, 2, Q("5 in")),
    Sketcher.Constraint("DistanceY", 10, 3, 0, 2, Q("13 in")),
    Sketcher.Constraint("DistanceY", 7, 2, 0, 2, Q("16 in")),
    Sketcher.Constraint("DistanceX", 2, 1, 2, 2, Q("24.75 in")),
    Sketcher.Constraint("DistanceX", 0, 2, 0, 1, Q("64.713 in")),
    Sketcher.Constraint("DistanceX", -1, 1, 4, 3, Q("3758.66809 mm")),
    Sketcher.Constraint("DistanceY", 4, 3, -1, 1, Q("1886.464003 mm")),
])
pad7 = body6.newObject("PartDesign::Pad", "Pad006")
pad7.Profile = sketch7
pad7.Length = Q("0.75 in")
body7 = doc.addObject("PartDesign::Body", "Body006")

# Sketch on XY plane
sketch8 = body7.newObject("Sketcher::SketchObject", "Sketch007")
sketch8.AttachmentSupport = (doc.getObject("XY_Plane006"), [""])
sketch8.MapMode = "FlatFace"
add_polygon(sketch8, [(1733.163656, -2231.111937), (1733.163656, -2688.311937), (1752.213656, -2688.311937), (1752.213656, -2239.002705), (2279.864624, -1711.351737), (2729.173856, -1711.351737), (2729.173856, -1692.301737), (2271.973856, -1692.301737)])  # lines 0-7
sketch8.addConstraint([
    Sketcher.Constraint("Vertical", 0),
    Sketcher.Constraint("Horizontal", 1),
    Sketcher.Constraint("Vertical", 2),
    Sketcher.Constraint("Horizontal", 4),
    Sketcher.Constraint("Vertical", 5),
    Sketcher.Constraint("Horizontal", 6),
    Sketcher.Constraint("Parallel", 3, 7),
    Sketcher.Constraint("Equal", 6, 0),
    Sketcher.Constraint("Equal", 4, 2),
    Sketcher.Constraint("Equal", 1, 5),
    Sketcher.Constraint("DistanceX", 6, 2, 6, 1, Q("18 in")),
    Sketcher.Constraint("DistanceX", 1, 1, 1, 2, Q("0.75 in")),
    Sketcher.Constraint("DistanceY", 1, 2, 3, 2, Q("38.463 in")),
    Sketcher.Constraint("DistanceX", 4, 1, 4, 2, Q("449.309232 mm")),
    Sketcher.Constraint("DistanceX", -1, 1, 0, 2, Q("1733.163656 mm")),
    Sketcher.Constraint("DistanceY", 0, 2, -1, 1, Q("2688.311937 mm")),
])
pad8 = body7.newObject("PartDesign::Pad", "Pad007")
pad8.Profile = sketch8
pad8.Length = Q("4 in")
body8 = doc.addObject("PartDesign::Body", "Body007")

# Sketch on XY plane
sketch9 = body8.newObject("Sketcher::SketchObject", "Sketch008")
sketch9.AttachmentSupport = (doc.getObject("XY_Plane007"), [""])
sketch9.MapMode = "FlatFace"
add_polygon(sketch9, [(-114.297524, -3067.239318), (-114.297524, -3372.039318), (711.202476, -3372.039318), (711.202476, -3067.239318)])  # lines 0-3
sketch9.addConstraint([
    Sketcher.Constraint("Vertical", 0),
    Sketcher.Constraint("Horizontal", 1),
    Sketcher.Constraint("Vertical", 2),
    Sketcher.Constraint("Horizontal", 3),
    Sketcher.Constraint("DistanceY", 0, 2, 0, 1, Q("12 in")),
    Sketcher.Constraint("DistanceX", 1, 1, 1, 2, Q("32.5 in")),
    Sketcher.Constraint("DistanceY", 0, 2, -1, 1, Q("3372.039318 mm")),
    Sketcher.Constraint("DistanceX", 0, 2, -1, 1, Q("114.297524 mm")),
])
pad9 = body8.newObject("PartDesign::Pad", "Pad008")
pad9.Profile = sketch9
pad9.Length = Q("0.5 in")

# Sketch on XY plane
sketch10 = body8.newObject("Sketcher::SketchObject", "Sketch009")
sketch10.AttachmentSupport = (doc.getObject("XY_Plane007"), [""])
sketch10.MapMode = "FlatFace"
add_polygon(sketch10, [(-114.297524, -3372.039318), (-114.297524, -3067.239318), (-88.897524, -3067.239318), (-88.897524, -3372.039318)])  # lines 0-3
add_polygon(sketch10, [(685.802476, -3372.039318), (685.802476, -3067.239318), (711.202476, -3067.239318), (711.202476, -3372.039318)])  # lines 4-7
sketch10.addConstraint([
    Sketcher.Constraint("Vertical", 0),
    Sketcher.Constraint("Horizontal", 1),
    Sketcher.Constraint("Vertical", 2),
    Sketcher.Constraint("Horizontal", 3),
    Sketcher.Constraint("Vertical", 4),
    Sketcher.Constraint("Horizontal", 5),
    Sketcher.Constraint("Vertical", 6),
    Sketcher.Constraint("Horizontal", 7),
    Sketcher.Constraint("Horizontal", 1, 2, 4, 2),
    Sketcher.Constraint("Horizontal", 3, 2, 6, 2),
    Sketcher.Constraint("Equal", 3, 5),
    Sketcher.Constraint("DistanceX", 1, 1, 1, 2, Q("1 in")),
    Sketcher.Constraint("DistanceY", 0, 1, 0, 2, Q("12 in")),
    Sketcher.Constraint("DistanceX", 1, 2, 4, 2, Q("30.5 in")),
    Sketcher.Constraint("DistanceY", 0, 2, -1, 1, Q("3067.239318 mm")),
    Sketcher.Constraint("DistanceX", 0, 2, -1, 1, Q("114.297524 mm")),
])
pad10 = body8.newObject("PartDesign::Pad", "Pad009")
pad10.Profile = sketch10
pad10.Length = Q("4 in")
pad10.Reversed = True

# Sketch on YZ plane
sketch11 = body8.newObject("Sketcher::SketchObject", "Sketch010")
sketch11.AttachmentSupport = (doc.getObject("YZ_Plane007"), [""])
sketch11.MapMode = "FlatFace"
sketch11.AttachmentOffset = App.Placement(V(0, 0, -88.897524), App.Rotation())
add_polygon(sketch11, [(-3372.039318, -88.9), (-3372.039318, -101.6), (-3067.239318, -101.6), (-3067.239318, -88.9)])  # lines 0-3
sketch11.addConstraint([
    Sketcher.Constraint("Vertical", 0),
    Sketcher.Constraint("Horizontal", 1),
    Sketcher.Constraint("Vertical", 2),
    Sketcher.Constraint("Horizontal", 3),
    Sketcher.Constraint("DistanceX", 1, 1, 1, 2, Q("12 in")),
    Sketcher.Constraint("DistanceY", 0, 2, 0, 1, Q("0.5 in")),
    Sketcher.Constraint("DistanceY", 0, 2, -1, 1, Q("4 in")),
    Sketcher.Constraint("DistanceX", 0, 2, -1, 1, Q("3372.039318 mm")),
])
pad11 = body8.newObject("PartDesign::Pad", "Pad010")
pad11.Profile = sketch11
pad11.Length = Q("1 in")

# Sketch on YZ plane
sketch12 = body8.newObject("Sketcher::SketchObject", "Sketch011")
sketch12.AttachmentSupport = (doc.getObject("YZ_Plane007"), [""])
sketch12.MapMode = "FlatFace"
sketch12.AttachmentOffset = App.Placement(V(0, 0, 685.802476), App.Rotation())
add_polygon(sketch12, [(-3067.239318, -88.9), (-3067.239318, -101.6), (-3372.039318, -101.6), (-3372.039318, -88.9)])  # lines 0-3
sketch12.addConstraint([
    Sketcher.Constraint("Vertical", 0),
    Sketcher.Constraint("Horizontal", 1),
    Sketcher.Constraint("Vertical", 2),
    Sketcher.Constraint("Horizontal", 3),
    Sketcher.Constraint("DistanceX", 1, 2, 1, 1, Q("12 in")),
    Sketcher.Constraint("DistanceY", 0, 2, 0, 1, Q("0.5 in")),
    Sketcher.Constraint("DistanceY", 0, 2, -1, 1, Q("4 in")),
    Sketcher.Constraint("DistanceX", 0, 2, -1, 1, Q("3067.239318 mm")),
])
pad12 = body8.newObject("PartDesign::Pad", "Pad011")
pad12.Profile = sketch12
pad12.Length = Q("1 in")
pad12.Reversed = True
body9 = doc.addObject("PartDesign::Body", "Body008")

# Sketch on XY plane
sketch13 = body9.newObject("Sketcher::SketchObject", "Sketch012")
sketch13.AttachmentSupport = (doc.getObject("XY_Plane008"), [""])
sketch13.MapMode = "FlatFace"
add_polygon(sketch13, [(-96.340216, -3666.440571), (-96.340216, -3971.240571), (678.359784, -3971.240571), (678.359784, -3666.440571)])  # lines 0-3
sketch13.addConstraint([
    Sketcher.Constraint("Vertical", 0),
    Sketcher.Constraint("Horizontal", 1),
    Sketcher.Constraint("Vertical", 2),
    Sketcher.Constraint("Horizontal", 3),
    Sketcher.Constraint("DistanceY", 0, 2, 0, 1, Q("12 in")),
    Sketcher.Constraint("DistanceX", 1, 1, 1, 2, Q("30.5 in")),
    Sketcher.Constraint("DistanceY", 0, 2, -1, 1, Q("3971.240571 mm")),
    Sketcher.Constraint("DistanceX", 0, 2, -1, 1, Q("96.340216 mm")),
])
pad13 = body9.newObject("PartDesign::Pad", "Pad012")
pad13.Profile = sketch13
pad13.Length = Q("0.5 in")

doc.recompute()
